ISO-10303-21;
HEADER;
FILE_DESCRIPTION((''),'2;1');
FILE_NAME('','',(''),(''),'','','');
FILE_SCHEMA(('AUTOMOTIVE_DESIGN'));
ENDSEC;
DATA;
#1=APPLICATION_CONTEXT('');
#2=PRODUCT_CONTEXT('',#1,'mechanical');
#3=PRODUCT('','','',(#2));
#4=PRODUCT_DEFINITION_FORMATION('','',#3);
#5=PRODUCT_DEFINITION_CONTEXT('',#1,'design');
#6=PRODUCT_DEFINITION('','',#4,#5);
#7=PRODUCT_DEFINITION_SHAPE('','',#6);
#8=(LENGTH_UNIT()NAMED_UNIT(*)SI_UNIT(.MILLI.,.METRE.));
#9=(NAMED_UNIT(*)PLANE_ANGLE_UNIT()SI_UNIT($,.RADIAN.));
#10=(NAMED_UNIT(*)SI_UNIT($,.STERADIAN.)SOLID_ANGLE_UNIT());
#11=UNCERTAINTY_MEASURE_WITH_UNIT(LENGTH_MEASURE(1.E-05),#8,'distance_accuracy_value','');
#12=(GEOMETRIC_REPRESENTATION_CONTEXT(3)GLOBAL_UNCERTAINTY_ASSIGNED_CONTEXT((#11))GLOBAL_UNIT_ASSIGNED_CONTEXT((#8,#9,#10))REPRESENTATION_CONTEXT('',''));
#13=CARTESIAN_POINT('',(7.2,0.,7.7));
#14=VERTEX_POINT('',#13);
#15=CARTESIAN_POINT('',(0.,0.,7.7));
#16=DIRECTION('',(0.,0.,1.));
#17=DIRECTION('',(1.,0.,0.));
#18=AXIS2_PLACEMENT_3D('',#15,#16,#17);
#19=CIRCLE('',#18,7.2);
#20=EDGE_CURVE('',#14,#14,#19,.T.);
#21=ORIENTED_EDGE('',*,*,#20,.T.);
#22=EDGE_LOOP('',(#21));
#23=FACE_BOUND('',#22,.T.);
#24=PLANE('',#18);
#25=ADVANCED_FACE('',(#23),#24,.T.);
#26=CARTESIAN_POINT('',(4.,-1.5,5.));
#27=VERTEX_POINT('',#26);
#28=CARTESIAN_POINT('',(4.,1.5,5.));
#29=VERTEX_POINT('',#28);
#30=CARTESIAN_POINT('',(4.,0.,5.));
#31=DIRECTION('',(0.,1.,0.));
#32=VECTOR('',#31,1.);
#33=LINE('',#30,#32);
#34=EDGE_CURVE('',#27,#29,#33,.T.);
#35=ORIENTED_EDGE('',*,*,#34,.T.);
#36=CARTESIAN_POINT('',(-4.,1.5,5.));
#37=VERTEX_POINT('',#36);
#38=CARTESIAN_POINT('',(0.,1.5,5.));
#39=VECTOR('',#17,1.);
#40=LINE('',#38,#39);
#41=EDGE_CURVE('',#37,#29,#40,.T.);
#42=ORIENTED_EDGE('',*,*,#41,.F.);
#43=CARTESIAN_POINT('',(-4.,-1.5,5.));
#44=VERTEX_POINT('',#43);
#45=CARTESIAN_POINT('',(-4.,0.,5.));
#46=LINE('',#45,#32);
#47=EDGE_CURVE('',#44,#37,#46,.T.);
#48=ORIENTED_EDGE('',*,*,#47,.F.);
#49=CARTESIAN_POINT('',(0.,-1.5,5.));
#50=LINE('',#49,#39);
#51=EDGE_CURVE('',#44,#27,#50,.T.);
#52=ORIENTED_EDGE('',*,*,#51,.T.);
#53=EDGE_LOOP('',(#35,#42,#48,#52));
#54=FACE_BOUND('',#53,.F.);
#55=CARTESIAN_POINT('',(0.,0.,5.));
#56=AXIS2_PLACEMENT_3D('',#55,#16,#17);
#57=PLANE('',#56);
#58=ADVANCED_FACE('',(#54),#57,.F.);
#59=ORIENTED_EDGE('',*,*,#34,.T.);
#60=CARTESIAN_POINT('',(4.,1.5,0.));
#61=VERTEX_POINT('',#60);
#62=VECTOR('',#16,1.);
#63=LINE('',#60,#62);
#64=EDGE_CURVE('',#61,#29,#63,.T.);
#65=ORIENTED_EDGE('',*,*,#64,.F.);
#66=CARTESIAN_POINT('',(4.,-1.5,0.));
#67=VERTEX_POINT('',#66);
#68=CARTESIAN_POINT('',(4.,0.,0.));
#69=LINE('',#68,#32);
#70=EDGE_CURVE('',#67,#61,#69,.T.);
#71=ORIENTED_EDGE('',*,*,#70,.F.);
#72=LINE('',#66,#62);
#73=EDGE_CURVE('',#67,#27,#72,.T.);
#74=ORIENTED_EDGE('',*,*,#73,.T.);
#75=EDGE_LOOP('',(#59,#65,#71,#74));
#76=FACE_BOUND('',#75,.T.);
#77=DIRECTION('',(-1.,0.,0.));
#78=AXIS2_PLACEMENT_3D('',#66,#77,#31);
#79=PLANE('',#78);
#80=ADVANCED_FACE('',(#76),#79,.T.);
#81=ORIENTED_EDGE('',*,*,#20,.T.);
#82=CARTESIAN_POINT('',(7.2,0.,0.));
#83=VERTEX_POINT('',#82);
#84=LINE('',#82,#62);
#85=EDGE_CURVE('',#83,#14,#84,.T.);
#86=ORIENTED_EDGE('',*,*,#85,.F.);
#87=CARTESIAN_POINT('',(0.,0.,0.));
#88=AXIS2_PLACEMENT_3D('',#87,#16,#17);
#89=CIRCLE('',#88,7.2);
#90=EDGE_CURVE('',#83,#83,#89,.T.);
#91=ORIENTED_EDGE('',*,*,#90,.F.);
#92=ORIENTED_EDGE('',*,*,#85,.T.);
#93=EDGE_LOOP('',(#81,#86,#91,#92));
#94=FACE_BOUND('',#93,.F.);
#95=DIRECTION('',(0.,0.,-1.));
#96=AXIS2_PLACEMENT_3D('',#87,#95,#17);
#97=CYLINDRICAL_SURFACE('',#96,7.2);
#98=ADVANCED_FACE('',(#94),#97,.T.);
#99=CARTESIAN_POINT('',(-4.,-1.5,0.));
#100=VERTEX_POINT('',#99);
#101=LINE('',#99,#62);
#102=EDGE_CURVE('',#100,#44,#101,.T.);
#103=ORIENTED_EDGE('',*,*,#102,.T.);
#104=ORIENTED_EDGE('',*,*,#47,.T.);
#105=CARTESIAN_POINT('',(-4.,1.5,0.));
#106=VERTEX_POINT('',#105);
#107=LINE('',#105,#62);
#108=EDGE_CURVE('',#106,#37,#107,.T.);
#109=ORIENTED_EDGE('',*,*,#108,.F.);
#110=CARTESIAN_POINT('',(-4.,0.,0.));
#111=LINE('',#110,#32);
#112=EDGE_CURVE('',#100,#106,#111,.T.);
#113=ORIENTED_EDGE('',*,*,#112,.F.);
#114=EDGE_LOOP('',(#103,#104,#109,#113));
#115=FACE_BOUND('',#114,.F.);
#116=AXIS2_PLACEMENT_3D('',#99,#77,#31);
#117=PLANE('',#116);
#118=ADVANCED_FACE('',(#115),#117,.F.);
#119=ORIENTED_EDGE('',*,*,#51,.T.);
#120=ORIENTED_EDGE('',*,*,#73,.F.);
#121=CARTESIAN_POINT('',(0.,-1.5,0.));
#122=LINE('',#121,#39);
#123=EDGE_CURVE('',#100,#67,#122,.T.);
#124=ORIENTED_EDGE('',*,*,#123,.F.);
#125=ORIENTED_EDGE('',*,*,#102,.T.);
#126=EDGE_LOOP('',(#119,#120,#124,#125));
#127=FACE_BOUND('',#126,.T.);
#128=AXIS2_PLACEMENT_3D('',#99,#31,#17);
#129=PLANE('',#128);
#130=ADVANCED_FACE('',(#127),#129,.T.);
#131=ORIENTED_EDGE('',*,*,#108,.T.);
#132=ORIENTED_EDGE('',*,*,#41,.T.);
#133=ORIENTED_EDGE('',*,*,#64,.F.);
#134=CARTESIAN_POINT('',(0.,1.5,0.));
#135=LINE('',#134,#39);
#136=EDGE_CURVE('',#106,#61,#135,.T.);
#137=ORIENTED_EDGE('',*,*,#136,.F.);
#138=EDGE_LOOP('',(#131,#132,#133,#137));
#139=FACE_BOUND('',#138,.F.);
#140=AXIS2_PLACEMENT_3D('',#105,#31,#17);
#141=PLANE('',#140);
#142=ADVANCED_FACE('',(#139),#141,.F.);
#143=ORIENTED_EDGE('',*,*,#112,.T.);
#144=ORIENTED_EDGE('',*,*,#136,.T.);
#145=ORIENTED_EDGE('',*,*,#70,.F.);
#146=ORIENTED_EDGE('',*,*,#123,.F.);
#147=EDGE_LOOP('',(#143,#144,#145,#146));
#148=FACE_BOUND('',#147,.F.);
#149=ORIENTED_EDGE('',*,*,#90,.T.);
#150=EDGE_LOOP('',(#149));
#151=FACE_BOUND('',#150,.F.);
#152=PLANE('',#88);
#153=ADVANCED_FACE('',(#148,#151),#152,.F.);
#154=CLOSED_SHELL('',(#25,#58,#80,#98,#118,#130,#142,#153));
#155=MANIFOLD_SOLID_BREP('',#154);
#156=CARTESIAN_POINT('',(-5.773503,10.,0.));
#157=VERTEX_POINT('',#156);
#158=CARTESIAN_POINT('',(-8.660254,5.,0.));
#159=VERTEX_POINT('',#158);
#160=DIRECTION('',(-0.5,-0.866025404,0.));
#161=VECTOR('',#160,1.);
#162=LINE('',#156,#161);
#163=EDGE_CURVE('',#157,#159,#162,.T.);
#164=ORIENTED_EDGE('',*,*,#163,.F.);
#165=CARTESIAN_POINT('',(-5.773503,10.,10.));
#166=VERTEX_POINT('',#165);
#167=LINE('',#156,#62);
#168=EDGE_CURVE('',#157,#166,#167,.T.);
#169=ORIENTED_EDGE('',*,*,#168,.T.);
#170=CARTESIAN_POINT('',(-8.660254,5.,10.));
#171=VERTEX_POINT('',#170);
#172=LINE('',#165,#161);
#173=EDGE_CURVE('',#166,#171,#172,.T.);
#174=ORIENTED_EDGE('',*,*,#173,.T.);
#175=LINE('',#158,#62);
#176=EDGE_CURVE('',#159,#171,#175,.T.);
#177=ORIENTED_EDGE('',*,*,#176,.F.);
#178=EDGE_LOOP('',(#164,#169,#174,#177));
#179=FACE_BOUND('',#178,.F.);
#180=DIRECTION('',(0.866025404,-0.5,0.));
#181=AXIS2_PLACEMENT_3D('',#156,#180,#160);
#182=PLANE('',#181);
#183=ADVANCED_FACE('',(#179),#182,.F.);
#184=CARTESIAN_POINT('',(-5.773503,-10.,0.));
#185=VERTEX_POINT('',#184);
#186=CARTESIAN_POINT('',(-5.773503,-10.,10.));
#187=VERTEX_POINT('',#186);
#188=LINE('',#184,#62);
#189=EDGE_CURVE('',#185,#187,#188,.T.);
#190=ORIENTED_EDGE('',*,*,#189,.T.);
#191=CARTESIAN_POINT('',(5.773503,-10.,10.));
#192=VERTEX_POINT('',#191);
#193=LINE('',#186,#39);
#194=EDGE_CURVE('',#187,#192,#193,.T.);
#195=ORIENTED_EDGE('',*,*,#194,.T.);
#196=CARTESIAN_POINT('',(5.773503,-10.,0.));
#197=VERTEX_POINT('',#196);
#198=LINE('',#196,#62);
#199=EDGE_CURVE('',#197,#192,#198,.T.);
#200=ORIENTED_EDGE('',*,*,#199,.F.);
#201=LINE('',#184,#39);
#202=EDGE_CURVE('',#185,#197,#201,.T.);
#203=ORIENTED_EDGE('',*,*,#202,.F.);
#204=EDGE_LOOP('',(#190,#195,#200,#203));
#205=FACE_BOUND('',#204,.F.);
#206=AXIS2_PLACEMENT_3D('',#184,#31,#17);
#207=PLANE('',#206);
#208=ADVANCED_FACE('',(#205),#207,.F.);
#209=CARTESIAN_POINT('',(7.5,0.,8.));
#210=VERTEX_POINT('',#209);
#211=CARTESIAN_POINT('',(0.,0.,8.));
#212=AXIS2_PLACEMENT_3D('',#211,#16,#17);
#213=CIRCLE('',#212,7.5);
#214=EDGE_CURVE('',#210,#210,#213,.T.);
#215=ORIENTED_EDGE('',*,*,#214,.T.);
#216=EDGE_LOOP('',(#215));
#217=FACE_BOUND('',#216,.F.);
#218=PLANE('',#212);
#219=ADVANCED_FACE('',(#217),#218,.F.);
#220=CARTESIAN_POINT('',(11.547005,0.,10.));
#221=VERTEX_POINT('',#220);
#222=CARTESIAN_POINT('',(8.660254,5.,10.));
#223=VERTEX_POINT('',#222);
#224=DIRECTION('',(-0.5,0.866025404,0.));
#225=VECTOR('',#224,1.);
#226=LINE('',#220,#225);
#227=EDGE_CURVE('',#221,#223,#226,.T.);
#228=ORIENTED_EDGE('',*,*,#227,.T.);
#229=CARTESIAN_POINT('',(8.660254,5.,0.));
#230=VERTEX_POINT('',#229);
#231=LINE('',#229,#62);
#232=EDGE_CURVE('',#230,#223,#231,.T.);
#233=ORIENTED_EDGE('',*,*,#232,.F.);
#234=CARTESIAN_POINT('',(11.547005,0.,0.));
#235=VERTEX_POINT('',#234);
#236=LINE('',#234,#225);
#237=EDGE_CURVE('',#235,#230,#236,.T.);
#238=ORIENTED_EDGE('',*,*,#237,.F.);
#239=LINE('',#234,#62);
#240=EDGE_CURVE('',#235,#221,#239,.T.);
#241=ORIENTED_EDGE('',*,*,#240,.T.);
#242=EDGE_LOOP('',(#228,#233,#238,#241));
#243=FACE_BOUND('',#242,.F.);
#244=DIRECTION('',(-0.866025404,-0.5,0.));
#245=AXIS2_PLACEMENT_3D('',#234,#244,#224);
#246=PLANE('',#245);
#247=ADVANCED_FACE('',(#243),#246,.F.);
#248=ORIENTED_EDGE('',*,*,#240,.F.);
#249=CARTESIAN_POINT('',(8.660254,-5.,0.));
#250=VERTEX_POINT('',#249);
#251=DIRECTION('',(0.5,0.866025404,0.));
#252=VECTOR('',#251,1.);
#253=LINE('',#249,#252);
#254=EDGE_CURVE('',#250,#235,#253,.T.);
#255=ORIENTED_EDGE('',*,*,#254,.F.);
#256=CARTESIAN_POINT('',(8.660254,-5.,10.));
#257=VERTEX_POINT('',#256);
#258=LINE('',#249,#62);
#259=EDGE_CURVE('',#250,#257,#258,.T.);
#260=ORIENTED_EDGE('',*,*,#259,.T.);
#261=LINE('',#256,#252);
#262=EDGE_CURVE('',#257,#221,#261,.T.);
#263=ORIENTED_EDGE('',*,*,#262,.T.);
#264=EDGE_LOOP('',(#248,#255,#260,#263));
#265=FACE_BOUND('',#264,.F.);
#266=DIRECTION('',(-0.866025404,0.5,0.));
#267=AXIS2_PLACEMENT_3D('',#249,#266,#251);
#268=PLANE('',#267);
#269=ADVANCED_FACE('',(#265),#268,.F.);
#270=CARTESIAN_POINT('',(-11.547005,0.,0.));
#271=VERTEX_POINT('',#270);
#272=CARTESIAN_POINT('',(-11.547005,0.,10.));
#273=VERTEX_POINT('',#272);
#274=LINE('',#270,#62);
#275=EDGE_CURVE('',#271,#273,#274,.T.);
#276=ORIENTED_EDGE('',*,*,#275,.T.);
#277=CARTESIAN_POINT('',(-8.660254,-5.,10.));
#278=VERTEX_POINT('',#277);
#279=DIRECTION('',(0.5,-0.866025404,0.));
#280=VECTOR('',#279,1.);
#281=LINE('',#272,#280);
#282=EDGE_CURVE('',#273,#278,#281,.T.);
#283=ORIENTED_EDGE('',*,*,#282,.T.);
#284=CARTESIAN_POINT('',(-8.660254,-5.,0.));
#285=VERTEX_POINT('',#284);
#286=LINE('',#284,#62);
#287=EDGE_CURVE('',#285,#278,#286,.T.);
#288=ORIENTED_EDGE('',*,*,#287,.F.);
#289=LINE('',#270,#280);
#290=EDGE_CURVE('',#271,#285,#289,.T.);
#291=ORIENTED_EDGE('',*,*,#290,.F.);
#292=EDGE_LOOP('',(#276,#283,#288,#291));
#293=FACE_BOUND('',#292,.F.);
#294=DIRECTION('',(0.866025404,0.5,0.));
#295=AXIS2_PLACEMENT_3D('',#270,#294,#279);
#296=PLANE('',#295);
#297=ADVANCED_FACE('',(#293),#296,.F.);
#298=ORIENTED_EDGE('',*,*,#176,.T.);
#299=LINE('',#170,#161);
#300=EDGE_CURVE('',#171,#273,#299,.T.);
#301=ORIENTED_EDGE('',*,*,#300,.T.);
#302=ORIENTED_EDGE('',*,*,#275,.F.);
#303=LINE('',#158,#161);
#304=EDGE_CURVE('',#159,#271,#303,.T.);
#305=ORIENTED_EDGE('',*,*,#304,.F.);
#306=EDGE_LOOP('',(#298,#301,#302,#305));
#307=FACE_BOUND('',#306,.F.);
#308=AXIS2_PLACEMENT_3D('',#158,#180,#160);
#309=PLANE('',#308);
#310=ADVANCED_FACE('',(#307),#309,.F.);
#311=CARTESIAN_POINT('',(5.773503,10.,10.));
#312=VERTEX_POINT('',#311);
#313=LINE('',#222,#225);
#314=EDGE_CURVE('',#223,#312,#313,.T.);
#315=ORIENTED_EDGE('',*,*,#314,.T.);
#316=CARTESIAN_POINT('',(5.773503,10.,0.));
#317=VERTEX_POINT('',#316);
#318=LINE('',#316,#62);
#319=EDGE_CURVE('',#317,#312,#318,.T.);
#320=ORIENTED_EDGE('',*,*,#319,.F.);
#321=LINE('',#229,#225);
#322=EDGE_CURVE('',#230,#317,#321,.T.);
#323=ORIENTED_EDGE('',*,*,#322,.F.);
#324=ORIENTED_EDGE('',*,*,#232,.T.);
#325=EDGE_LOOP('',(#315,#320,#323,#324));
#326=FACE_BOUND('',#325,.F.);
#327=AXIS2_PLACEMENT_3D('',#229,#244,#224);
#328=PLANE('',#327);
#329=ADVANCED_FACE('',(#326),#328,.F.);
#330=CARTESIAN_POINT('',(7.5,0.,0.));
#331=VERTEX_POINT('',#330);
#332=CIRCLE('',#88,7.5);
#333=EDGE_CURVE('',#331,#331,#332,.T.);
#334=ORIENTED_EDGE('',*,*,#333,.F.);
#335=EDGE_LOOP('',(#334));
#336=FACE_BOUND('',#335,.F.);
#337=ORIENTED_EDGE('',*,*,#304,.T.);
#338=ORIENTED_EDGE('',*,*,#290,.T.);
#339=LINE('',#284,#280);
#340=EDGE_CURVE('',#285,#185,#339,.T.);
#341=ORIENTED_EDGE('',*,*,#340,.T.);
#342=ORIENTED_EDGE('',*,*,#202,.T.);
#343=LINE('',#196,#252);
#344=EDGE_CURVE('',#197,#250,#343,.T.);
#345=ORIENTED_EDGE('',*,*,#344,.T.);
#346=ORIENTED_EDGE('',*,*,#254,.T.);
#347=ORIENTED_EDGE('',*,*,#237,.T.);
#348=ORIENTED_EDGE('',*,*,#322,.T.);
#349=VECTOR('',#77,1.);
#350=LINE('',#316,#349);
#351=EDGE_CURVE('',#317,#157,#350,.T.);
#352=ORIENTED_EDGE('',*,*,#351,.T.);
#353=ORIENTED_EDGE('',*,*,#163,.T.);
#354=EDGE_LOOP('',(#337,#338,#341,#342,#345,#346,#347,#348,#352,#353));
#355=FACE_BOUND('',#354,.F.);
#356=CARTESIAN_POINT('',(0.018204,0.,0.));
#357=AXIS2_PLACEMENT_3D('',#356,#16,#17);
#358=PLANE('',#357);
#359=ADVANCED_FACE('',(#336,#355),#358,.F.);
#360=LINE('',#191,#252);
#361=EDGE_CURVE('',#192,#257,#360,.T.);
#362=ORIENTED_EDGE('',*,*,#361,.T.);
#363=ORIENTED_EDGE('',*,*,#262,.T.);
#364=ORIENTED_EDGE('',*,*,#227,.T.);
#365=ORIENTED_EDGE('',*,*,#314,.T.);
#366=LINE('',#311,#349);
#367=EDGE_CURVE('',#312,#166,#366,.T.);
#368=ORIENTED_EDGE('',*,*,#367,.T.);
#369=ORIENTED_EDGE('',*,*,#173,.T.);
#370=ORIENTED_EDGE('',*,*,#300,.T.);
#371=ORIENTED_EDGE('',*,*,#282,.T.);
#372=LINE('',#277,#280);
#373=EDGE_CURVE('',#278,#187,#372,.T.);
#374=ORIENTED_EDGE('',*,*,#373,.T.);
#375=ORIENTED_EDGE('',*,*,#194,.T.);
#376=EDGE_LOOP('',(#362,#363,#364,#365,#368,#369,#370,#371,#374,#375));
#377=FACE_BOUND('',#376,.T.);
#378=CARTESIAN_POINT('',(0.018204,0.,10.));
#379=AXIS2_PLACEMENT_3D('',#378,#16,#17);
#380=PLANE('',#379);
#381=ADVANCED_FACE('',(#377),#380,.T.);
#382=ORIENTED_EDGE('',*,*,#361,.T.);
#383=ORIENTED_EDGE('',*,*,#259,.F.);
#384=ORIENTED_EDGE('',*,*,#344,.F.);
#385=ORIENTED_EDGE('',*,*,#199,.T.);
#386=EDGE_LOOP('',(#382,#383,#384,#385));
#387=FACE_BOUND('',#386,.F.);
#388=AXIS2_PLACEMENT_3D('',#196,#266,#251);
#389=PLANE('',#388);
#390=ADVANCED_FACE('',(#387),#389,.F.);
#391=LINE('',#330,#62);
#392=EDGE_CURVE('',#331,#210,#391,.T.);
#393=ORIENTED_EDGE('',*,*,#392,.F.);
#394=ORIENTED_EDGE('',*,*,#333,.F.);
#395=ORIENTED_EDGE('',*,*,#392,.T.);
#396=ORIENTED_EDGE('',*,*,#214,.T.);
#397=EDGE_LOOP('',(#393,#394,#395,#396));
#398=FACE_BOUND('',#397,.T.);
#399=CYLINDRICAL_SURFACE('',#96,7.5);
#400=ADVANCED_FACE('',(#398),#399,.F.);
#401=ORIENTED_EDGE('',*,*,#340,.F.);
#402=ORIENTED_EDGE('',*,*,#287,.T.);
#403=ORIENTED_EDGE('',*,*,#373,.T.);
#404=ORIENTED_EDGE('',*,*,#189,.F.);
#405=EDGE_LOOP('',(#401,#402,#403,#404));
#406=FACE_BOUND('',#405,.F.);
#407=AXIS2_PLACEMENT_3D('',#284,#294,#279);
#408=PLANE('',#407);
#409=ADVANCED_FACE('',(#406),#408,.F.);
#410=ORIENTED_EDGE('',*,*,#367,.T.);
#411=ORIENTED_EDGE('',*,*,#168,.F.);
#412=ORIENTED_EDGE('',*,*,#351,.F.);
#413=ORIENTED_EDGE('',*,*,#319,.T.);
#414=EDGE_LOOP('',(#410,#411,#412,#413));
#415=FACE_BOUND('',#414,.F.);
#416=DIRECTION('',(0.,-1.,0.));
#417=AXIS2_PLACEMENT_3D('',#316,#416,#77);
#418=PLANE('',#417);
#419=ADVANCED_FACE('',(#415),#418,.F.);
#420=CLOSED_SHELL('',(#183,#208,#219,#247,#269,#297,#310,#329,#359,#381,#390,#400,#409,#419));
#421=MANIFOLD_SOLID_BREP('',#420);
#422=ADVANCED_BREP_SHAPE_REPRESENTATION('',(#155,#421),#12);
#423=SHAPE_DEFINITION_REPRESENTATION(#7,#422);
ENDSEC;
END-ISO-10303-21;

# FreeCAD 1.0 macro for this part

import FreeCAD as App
import Part
import Sketcher
from FreeCAD import Vector
Q = App.Units.Quantity

doc = App.newDocument("Part")
body = doc.addObject("PartDesign::Body", "Body")

# Sketch on XY plane
sketch1 = body.newObject("Sketcher::SketchObject", "Sketch")
sketch1.AttachmentSupport = (doc.getObject("XY_Plane"), [""])
sketch1.MapMode = "FlatFace"
sketch1.addGeometry([
    Part.LineSegment(Vector(9, 5, 0), Vector(6, 10, 0)),  # 0
    Part.LineSegment(Vector(6, 10, 0), Vector(-6, 10, 0)),  # 1
    Part.LineSegment(Vector(-6, 10, 0), Vector(-9, 5, 0)),  # 2
    Part.LineSegment(Vector(-9, 5, 0), Vector(-12, 0, 0)),  # 3
    Part.LineSegment(Vector(-12, 0, 0), Vector(-9, -5, 0)),  # 4
    Part.LineSegment(Vector(-9, -5, 0), Vector(-6, -10, 0)),  # 5
    Part.LineSegment(Vector(-6, -10, 0), Vector(6, -10, 0)),  # 6
    Part.LineSegment(Vector(6, -10, 0), Vector(9, -5, 0)),  # 7
    Part.LineSegment(Vector(9, -5, 0), Vector(12, 0, 0)),  # 8
    Part.LineSegment(Vector(12, 0, 0), Vector(9, 5, 0)),  # 9
], False)
sketch1.addConstraint([
    Sketcher.Constraint("Coincident", 0, 2, 1, 1),
    Sketcher.Constraint("Coincident", 1, 2, 2, 1),
    Sketcher.Constraint("Coincident", 2, 2, 3, 1),
    Sketcher.Constraint("Coincident", 3, 2, 4, 1),
    Sketcher.Constraint("Coincident", 4, 2, 5, 1),
    Sketcher.Constraint("Coincident", 5, 2, 6, 1),
    Sketcher.Constraint("Coincident", 6, 2, 7, 1),
    Sketcher.Constraint("Coincident", 7, 2, 8, 1),
    Sketcher.Constraint("Coincident", 8, 2, 9, 1),
    Sketcher.Constraint("Coincident", 9, 2, 0, 1),
    Sketcher.Constraint("Horizontal", 1),
    Sketcher.Constraint("Horizontal", 6),
    Sketcher.Constraint("Symmetric", 0, 2, 5, 2, -1, 1),
    Sketcher.Constraint("Symmetric", 2, 2, 7, 2, -1, 1),
    Sketcher.Constraint("Symmetric", 3, 2, 8, 2, -1, 1),
    Sketcher.Constraint("Symmetric", 4, 2, 9, 2, -1, 1),
    Sketcher.Constraint("Symmetric", 4, 2, 7, 2, -2),
    Sketcher.Constraint("PointOnObject", 3, 2, -1),
    Sketcher.Constraint("Parallel", 2, 3),
    Sketcher.Constraint("Parallel", 0, 4),
    Sketcher.Constraint("Parallel", 3, 7),
    Sketcher.Constraint("Equal", 2, 3),
    Sketcher.Constraint("Angle", 0, Q("120 deg")),
    Sketcher.Constraint("DistanceY", -1, 1, 0, 2, 10.0),
    Sketcher.Constraint("DistanceX", 1, 2, 1, 1, 11.547005),
])
pad1 = body.newObject("PartDesign::Pad", "Pad")
pad1.Profile = sketch1
pad1.Length = 10

# Sketch on XY plane
sketch2 = body.newObject("Sketcher::SketchObject", "Sketch001")
sketch2.AttachmentSupport = (doc.getObject("XY_Plane"), [""])
sketch2.MapMode = "FlatFace"
sketch2.addGeometry(Part.Circle(Vector(0, 0, 0), Vector(0, 0, 1), 8), False)
sketch2.addConstraint([
    Sketcher.Constraint("Coincident", 0, 3, -1, 1),
    Sketcher.Constraint("Diameter", 0, 15.0),
])
pocket1 = body.newObject("PartDesign::Pocket", "Pocket")
pocket1.Profile = sketch2
pocket1.Length = 8
pocket1.Reversed = True
body2 = doc.addObject("PartDesign::Body", "Body001")

# Sketch on XY plane
sketch3 = body2.newObject("Sketcher::SketchObject", "Sketch002")
sketch3.AttachmentSupport = (doc.getObject("XY_Plane001"), [""])
sketch3.MapMode = "FlatFace"
sketch3.addGeometry(Part.Circle(Vector(0, 0, 0), Vector(0, 0, 1), 7), False)
sketch3.addConstraint([
    Sketcher.Constraint("Coincident", 0, 3, -1, 1),
    Sketcher.Constraint("Diameter", 0, 14.4),
])
pad2 = body2.newObject("PartDesign::Pad", "Pad001")
pad2.Profile = sketch3
pad2.Length = 7.7

# Sketch on XY plane
sketch4 = body2.newObject("Sketcher::SketchObject", "Sketch003")
sketch4.AttachmentSupport = (doc.getObject("XY_Plane001"), [""])
sketch4.MapMode = "FlatFace"
sketch4.addGeometry([
    Part.LineSegment(Vector(-4, 1.5, 0), Vector(-4, -1.5, 0)),
    Part.LineSegment(Vector(-4, -1.5, 0), Vector(4, -1.5, 0)),
    Part.LineSegment(Vector(4, -1.5, 0), Vector(4, 1.5, 0)),
    Part.LineSegment(Vector(4, 1.5, 0), Vector(-4, 1.5, 0)),
], False)
sketch4.addConstraint([
    Sketcher.Constraint("Coincident", 0, 2, 1, 1),
    Sketcher.Constraint("Coincident", 1, 2, 2, 1),
    Sketcher.Constraint("Coincident", 2, 2, 3, 1),
    Sketcher.Constraint("Coincident", 3, 2, 0, 1),
    Sketcher.Constraint("Vertical", 0),
    Sketcher.Constraint("Horizontal", 1),
    Sketcher.Constraint("Vertical", 2),
    Sketcher.Constraint("Horizontal", 3),
    Sketcher.Constraint("Symmetric", 0, 2, 2, 2, -1, 1),
    Sketcher.Constraint("DistanceX", 1, 1, 1, 2, 8.0),
    Sketcher.Constraint("DistanceY", 0, 2, 0, 1, 3.0),
])
pocket2 = body2.newObject("PartDesign::Pocket", "Pocket001")
pocket2.Profile = sketch4
pocket2.Length = 5
pocket2.Reversed = True

doc.recompute()
